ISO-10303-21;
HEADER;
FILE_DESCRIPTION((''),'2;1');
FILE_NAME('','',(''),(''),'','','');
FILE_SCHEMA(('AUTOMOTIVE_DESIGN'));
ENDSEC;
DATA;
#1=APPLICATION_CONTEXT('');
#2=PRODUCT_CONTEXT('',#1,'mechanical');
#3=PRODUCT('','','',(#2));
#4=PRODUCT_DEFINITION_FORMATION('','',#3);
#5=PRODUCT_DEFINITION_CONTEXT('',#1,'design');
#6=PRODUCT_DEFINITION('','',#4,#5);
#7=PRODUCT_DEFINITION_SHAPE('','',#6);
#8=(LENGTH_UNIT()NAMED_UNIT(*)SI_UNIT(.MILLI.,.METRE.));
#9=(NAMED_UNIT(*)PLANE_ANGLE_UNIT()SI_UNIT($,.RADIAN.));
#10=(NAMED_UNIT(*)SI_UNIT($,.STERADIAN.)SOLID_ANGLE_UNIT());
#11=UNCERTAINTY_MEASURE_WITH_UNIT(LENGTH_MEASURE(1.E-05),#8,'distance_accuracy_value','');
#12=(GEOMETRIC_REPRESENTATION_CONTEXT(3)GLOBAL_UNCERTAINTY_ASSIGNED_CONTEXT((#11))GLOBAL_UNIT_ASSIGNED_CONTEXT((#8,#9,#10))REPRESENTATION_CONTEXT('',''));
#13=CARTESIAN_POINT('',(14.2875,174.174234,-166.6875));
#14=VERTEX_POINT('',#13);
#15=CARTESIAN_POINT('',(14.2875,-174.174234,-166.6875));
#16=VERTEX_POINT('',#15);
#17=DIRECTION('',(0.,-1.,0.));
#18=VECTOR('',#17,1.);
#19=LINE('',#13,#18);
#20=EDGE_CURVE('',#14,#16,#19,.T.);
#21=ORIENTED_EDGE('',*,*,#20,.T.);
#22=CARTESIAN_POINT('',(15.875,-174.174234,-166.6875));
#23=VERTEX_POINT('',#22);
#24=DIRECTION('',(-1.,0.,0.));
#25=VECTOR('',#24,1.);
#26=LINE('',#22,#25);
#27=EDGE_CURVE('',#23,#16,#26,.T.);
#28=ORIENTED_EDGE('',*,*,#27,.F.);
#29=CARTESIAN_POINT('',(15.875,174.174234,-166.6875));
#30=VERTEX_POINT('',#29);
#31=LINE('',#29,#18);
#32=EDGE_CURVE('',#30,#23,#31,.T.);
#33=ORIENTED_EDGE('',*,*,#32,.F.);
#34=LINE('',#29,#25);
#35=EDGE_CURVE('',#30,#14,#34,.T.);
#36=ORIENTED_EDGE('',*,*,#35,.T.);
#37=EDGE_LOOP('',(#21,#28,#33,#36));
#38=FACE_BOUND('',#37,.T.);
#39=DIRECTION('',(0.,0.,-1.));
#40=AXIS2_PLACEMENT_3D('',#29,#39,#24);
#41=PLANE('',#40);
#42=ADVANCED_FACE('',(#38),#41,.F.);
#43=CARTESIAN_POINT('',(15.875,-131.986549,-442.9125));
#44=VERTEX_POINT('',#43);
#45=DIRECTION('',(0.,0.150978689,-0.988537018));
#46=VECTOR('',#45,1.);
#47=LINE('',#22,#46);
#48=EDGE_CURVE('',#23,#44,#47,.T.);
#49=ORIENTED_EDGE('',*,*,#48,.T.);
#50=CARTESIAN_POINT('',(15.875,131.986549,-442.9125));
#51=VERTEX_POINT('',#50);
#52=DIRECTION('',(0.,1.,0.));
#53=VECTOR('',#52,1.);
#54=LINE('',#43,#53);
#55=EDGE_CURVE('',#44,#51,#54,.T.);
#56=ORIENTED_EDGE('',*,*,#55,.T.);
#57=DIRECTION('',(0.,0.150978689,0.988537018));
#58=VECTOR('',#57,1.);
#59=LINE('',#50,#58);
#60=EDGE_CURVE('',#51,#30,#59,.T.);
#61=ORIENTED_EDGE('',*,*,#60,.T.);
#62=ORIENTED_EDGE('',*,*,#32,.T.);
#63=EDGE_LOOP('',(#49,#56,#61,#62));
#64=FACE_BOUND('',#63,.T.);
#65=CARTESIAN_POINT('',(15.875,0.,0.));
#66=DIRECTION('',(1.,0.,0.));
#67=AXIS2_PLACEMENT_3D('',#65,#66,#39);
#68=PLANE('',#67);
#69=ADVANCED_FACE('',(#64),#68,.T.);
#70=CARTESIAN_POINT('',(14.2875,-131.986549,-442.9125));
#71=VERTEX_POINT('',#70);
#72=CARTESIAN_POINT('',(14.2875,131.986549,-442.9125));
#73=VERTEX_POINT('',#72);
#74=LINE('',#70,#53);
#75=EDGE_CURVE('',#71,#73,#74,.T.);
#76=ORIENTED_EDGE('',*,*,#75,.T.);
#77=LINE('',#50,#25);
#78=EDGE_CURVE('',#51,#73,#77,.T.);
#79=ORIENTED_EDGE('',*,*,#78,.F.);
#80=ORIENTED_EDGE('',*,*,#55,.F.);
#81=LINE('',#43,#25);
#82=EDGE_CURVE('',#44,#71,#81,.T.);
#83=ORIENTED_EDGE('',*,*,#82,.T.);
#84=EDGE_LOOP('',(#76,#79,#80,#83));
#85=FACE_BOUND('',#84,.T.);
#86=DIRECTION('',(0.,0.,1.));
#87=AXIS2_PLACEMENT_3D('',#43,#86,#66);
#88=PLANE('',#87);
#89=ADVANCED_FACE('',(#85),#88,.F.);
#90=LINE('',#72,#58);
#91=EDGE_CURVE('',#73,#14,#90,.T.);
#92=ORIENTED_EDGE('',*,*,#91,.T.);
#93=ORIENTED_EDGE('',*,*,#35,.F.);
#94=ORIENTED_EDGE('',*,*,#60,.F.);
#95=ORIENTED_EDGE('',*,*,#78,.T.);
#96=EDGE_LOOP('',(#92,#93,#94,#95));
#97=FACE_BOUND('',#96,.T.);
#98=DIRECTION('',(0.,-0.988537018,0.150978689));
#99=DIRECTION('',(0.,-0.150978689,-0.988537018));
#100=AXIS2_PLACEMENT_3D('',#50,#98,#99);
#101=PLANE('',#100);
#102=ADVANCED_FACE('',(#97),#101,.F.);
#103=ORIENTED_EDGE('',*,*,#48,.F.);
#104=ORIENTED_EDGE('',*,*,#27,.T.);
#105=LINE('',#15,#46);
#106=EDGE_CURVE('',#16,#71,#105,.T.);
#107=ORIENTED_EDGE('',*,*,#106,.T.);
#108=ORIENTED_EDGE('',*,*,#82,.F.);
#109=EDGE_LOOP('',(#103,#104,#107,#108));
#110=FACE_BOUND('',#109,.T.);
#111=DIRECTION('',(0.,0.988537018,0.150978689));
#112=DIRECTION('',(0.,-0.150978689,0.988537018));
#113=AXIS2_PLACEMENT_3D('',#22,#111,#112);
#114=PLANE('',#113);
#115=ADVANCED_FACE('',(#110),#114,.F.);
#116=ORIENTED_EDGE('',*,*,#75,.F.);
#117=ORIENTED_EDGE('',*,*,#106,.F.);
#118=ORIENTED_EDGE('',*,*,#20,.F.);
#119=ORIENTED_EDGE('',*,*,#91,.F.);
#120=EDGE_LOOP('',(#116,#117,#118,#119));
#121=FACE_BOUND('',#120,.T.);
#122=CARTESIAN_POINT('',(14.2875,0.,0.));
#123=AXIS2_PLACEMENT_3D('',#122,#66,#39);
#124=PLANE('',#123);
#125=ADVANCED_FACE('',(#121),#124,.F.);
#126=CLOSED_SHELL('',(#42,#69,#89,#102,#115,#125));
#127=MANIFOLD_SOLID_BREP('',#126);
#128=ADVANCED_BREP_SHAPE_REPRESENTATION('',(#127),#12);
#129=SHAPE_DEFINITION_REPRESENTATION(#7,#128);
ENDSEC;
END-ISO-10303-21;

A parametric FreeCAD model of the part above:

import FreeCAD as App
import Part
import Sketcher
from FreeCAD import Vector
Q = App.Units.Quantity

doc = App.newDocument("Part")
body = doc.addObject("PartDesign::Body", "Body")

# Sketch on YZ plane
sketch1 = body.newObject("Sketcher::SketchObject", "Sketch")
sketch1.AttachmentSupport = (doc.getObject("YZ_Plane"), [""])
sketch1.MapMode = "FlatFace"
sketch1.AttachmentOffset = App.Placement(Vector(0, 0, 0.5625 * 25.4), App.Rotation())
sketch1.addGeometry([
    Part.LineSegment(Vector(174, -167, 0), Vector(-174, -167, 0)),
    Part.LineSegment(Vector(-174, -167, 0), Vector(-132, -443, 0)),
    Part.LineSegment(Vector(-132, -443, 0), Vector(132, -443, 0)),
    Part.LineSegment(Vector(132, -443, 0), Vector(174, -167, 0)),
], False)
sketch1.addConstraint([
    Sketcher.Constraint("Coincident", 0, 2, 1, 1),
    Sketcher.Constraint("Coincident", 1, 2, 2, 1),
    Sketcher.Constraint("Coincident", 2, 2, 3, 1),
    Sketcher.Constraint("Coincident", 3, 2, 0, 1),
    Sketcher.Constraint("Horizontal", 0),
    Sketcher.Constraint("Horizontal", 2),
    Sketcher.Constraint("Equal", 1, 3),
    Sketcher.Constraint("DistanceY", 0, 2, -1, 1, Q("6.5625 in")),
    Sketcher.Constraint("DistanceY", 1, 2, -1, 1, Q("17.4375 in")),
    Sketcher.Constraint("DistanceX", 2, 1, 2, 2, 263.973099),
    Sketcher.Constraint("DistanceX", 0, 2, 0, 1, 348.348469),
    Sketcher.Constraint("DistanceX", 1, 2, -1, 1, 131.986549),
])
pad1 = body.newObject("PartDesign::Pad", "Pad")
pad1.Profile = sketch1
pad1.Length = Q("0.0625 in")

doc.recompute()
